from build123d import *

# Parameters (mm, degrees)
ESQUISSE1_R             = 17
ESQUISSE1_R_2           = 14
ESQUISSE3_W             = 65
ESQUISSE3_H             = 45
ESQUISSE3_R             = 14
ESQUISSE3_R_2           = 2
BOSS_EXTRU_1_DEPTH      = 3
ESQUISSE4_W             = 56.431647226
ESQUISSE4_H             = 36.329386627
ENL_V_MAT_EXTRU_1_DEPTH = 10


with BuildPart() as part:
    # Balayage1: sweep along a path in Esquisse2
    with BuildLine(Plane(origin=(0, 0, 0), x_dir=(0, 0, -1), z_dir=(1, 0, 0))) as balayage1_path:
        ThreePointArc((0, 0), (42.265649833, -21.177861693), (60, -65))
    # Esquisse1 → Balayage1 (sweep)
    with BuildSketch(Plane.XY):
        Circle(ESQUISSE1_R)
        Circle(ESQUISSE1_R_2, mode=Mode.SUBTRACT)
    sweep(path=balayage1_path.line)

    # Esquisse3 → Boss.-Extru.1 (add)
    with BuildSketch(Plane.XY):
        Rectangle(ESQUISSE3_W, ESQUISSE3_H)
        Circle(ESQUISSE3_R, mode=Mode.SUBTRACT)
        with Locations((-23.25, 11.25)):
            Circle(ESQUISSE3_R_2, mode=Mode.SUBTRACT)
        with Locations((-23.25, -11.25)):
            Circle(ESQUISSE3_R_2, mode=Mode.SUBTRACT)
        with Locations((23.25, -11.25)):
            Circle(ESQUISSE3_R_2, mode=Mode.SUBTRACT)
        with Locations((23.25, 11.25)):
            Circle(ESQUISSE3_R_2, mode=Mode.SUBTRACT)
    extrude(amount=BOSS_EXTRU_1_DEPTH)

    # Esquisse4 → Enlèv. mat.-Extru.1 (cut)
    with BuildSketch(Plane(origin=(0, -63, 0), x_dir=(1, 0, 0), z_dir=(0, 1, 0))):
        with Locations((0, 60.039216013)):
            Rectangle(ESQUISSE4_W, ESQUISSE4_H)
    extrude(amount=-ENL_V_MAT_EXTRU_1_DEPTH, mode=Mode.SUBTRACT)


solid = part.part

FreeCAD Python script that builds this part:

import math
import FreeCAD as App
import Part
import Sketcher

V = App.Vector


def add_polygon(sketch, points):
    """Adds a closed chain of lines whose ends are joined by coincident constraints."""
    first, n = sketch.GeometryCount, len(points)
    for a, b in zip(points, points[1:] + points[:1]):
        sketch.addGeometry(Part.LineSegment(App.Vector(*a, 0), App.Vector(*b, 0)), False)
    for i in range(n):
        sketch.addConstraint(Sketcher.Constraint("Coincident", first + i, 2, first + (i + 1) % n, 1))

doc = App.newDocument("Part")
body = doc.addObject("PartDesign::Body", "Body")

# Sketch on XY plane
sketch1 = body.newObject("Sketcher::SketchObject", "Sketch")
sketch1.AttachmentSupport = (doc.getObject("XY_Plane"), [""])
sketch1.MapMode = "FlatFace"
sketch1.addGeometry([
    Part.Circle(V(0, 0, 0), V(0, 0, 1), 17),
    Part.Circle(V(0, 0, 0), V(0, 0, 1), 14),
], False)
sketch1.addConstraint([
    Sketcher.Constraint("Coincident", 0, 3, -1, 1),
    Sketcher.Constraint("Coincident", 1, 3, -1, 1),
    Sketcher.Constraint("Diameter", 0, 34.0),
    Sketcher.Constraint("Diameter", 1, 28.0),
])

# Sketch on YZ plane
sketch2 = body.newObject("Sketcher::SketchObject", "Sketch001")
sketch2.AttachmentSupport = (doc.getObject("YZ_Plane"), [""])
sketch2.MapMode = "FlatFace"
sketch2.addGeometry(Part.ArcOfCircle(Part.Circle(V(-66.584073, 6.924413, 0), V(0, 0, 1), 66.943157), math.radians(-88.644086), math.radians(-5.937134)), False)
sketch2.addConstraint([
    Sketcher.Constraint("Coincident", 0, 2, -1, 1),
    Sketcher.Constraint("DistanceX", 0, 1, -1, 1, 65.0),
    Sketcher.Constraint("DistanceY", 0, 1, -1, 1, 60.0),
    Sketcher.Constraint("Radius", 0, 66.943157),
])
doc.recompute()

additivepipe = body.newObject("PartDesign::AdditivePipe", "AdditivePipe")
additivepipe.Profile = sketch1
additivepipe.Spine = (sketch2, ["Edge1"])

# Sketch on XY plane
sketch3 = body.newObject("Sketcher::SketchObject", "Sketch002")
sketch3.AttachmentSupport = (doc.getObject("XY_Plane"), [""])
sketch3.MapMode = "FlatFace"
add_polygon(sketch3, [(-32.5, 22.5), (-32.5, -22.5), (32.5, -22.5), (32.5, 22.5)])  # lines 0-3
sketch3.addGeometry(Part.Circle(V(-23.25, -11.25, 0), V(0, 0, 1), 2), False)  # 4
sketch3.addGeometry(Part.Circle(V(23.25, -11.25, 0), V(0, 0, 1), 2), False)  # 5
sketch3.addGeometry(Part.Circle(V(-23.25, 11.25, 0), V(0, 0, 1), 2), False)  # 6
sketch3.addGeometry(Part.Circle(V(0, 0, 0), V(0, 0, 1), 14), False)  # 7
sketch3.addGeometry(Part.Circle(V(23.25, 11.25, 0), V(0, 0, 1), 2), False)  # 8
sketch3.addConstraint([
    Sketcher.Constraint("Vertical", 0),
    Sketcher.Constraint("Horizontal", 1),
    Sketcher.Constraint("Vertical", 2),
    Sketcher.Constraint("Horizontal", 3),
    Sketcher.Constraint("Coincident", 7, 3, -1, 1),
    Sketcher.Constraint("Equal", 4, 5),
    Sketcher.Constraint("Equal", 5, 6),
    Sketcher.Constraint("Equal", 6, 8),
    Sketcher.Constraint("Symmetric", 5, 3, 6, 3, -1, 1),
    Sketcher.Constraint("Symmetric", 4, 3, 8, 3, -1, 1),
    Sketcher.Constraint("Symmetric", 0, 2, 2, 2, -1, 1),
    Sketcher.Constraint("Symmetric", 4, 3, 5, 3, -2),
    Sketcher.Constraint("Diameter", 4, 4.0),
    Sketcher.Constraint("Diameter", 7, 28.0),
    Sketcher.Constraint("DistanceX", 1, 1, 1, 2, 65.0),
    Sketcher.Constraint("DistanceY", 0, 2, 0, 1, 45.0),
    Sketcher.Constraint("DistanceX", 4, 3, 5, 3, 46.5),
    Sketcher.Constraint("DistanceY", 4, 3, 6, 3, 22.5),
])
pad1 = body.newObject("PartDesign::Pad", "Pad")
pad1.Profile = sketch3
pad1.Length = 3

# Sketch on XZ plane
sketch4 = body.newObject("Sketcher::SketchObject", "Sketch003")
sketch4.AttachmentSupport = (doc.getObject("XZ_Plane"), [""])
sketch4.MapMode = "FlatFace"
sketch4.AttachmentOffset = App.Placement(V(0, 0, 63), App.Rotation())
add_polygon(sketch4, [(-28.215824, -78.203909), (-28.215824, -41.874523), (28.215824, -41.874523), (28.215824, -78.203909)])  # lines 0-3
sketch4.addConstraint([
    Sketcher.Constraint("Vertical", 0),
    Sketcher.Constraint("Horizontal", 1),
    Sketcher.Constraint("Vertical", 2),
    Sketcher.Constraint("Horizontal", 3),
    Sketcher.Constraint("DistanceX", 1, 1, 1, 2, 56.431647),
    Sketcher.Constraint("DistanceY", 0, 1, 0, 2, 36.329387),
    Sketcher.Constraint("DistanceY", 2, 2, -1, 1, 78.203909),
    Sketcher.Constraint("DistanceX", 0, 2, -1, 1, 28.215824),
])
pocket1 = body.newObject("PartDesign::Pocket", "Pocket")
pocket1.Profile = sketch4
pocket1.Length = 10
pocket1.Reversed = True

doc.recompute()
